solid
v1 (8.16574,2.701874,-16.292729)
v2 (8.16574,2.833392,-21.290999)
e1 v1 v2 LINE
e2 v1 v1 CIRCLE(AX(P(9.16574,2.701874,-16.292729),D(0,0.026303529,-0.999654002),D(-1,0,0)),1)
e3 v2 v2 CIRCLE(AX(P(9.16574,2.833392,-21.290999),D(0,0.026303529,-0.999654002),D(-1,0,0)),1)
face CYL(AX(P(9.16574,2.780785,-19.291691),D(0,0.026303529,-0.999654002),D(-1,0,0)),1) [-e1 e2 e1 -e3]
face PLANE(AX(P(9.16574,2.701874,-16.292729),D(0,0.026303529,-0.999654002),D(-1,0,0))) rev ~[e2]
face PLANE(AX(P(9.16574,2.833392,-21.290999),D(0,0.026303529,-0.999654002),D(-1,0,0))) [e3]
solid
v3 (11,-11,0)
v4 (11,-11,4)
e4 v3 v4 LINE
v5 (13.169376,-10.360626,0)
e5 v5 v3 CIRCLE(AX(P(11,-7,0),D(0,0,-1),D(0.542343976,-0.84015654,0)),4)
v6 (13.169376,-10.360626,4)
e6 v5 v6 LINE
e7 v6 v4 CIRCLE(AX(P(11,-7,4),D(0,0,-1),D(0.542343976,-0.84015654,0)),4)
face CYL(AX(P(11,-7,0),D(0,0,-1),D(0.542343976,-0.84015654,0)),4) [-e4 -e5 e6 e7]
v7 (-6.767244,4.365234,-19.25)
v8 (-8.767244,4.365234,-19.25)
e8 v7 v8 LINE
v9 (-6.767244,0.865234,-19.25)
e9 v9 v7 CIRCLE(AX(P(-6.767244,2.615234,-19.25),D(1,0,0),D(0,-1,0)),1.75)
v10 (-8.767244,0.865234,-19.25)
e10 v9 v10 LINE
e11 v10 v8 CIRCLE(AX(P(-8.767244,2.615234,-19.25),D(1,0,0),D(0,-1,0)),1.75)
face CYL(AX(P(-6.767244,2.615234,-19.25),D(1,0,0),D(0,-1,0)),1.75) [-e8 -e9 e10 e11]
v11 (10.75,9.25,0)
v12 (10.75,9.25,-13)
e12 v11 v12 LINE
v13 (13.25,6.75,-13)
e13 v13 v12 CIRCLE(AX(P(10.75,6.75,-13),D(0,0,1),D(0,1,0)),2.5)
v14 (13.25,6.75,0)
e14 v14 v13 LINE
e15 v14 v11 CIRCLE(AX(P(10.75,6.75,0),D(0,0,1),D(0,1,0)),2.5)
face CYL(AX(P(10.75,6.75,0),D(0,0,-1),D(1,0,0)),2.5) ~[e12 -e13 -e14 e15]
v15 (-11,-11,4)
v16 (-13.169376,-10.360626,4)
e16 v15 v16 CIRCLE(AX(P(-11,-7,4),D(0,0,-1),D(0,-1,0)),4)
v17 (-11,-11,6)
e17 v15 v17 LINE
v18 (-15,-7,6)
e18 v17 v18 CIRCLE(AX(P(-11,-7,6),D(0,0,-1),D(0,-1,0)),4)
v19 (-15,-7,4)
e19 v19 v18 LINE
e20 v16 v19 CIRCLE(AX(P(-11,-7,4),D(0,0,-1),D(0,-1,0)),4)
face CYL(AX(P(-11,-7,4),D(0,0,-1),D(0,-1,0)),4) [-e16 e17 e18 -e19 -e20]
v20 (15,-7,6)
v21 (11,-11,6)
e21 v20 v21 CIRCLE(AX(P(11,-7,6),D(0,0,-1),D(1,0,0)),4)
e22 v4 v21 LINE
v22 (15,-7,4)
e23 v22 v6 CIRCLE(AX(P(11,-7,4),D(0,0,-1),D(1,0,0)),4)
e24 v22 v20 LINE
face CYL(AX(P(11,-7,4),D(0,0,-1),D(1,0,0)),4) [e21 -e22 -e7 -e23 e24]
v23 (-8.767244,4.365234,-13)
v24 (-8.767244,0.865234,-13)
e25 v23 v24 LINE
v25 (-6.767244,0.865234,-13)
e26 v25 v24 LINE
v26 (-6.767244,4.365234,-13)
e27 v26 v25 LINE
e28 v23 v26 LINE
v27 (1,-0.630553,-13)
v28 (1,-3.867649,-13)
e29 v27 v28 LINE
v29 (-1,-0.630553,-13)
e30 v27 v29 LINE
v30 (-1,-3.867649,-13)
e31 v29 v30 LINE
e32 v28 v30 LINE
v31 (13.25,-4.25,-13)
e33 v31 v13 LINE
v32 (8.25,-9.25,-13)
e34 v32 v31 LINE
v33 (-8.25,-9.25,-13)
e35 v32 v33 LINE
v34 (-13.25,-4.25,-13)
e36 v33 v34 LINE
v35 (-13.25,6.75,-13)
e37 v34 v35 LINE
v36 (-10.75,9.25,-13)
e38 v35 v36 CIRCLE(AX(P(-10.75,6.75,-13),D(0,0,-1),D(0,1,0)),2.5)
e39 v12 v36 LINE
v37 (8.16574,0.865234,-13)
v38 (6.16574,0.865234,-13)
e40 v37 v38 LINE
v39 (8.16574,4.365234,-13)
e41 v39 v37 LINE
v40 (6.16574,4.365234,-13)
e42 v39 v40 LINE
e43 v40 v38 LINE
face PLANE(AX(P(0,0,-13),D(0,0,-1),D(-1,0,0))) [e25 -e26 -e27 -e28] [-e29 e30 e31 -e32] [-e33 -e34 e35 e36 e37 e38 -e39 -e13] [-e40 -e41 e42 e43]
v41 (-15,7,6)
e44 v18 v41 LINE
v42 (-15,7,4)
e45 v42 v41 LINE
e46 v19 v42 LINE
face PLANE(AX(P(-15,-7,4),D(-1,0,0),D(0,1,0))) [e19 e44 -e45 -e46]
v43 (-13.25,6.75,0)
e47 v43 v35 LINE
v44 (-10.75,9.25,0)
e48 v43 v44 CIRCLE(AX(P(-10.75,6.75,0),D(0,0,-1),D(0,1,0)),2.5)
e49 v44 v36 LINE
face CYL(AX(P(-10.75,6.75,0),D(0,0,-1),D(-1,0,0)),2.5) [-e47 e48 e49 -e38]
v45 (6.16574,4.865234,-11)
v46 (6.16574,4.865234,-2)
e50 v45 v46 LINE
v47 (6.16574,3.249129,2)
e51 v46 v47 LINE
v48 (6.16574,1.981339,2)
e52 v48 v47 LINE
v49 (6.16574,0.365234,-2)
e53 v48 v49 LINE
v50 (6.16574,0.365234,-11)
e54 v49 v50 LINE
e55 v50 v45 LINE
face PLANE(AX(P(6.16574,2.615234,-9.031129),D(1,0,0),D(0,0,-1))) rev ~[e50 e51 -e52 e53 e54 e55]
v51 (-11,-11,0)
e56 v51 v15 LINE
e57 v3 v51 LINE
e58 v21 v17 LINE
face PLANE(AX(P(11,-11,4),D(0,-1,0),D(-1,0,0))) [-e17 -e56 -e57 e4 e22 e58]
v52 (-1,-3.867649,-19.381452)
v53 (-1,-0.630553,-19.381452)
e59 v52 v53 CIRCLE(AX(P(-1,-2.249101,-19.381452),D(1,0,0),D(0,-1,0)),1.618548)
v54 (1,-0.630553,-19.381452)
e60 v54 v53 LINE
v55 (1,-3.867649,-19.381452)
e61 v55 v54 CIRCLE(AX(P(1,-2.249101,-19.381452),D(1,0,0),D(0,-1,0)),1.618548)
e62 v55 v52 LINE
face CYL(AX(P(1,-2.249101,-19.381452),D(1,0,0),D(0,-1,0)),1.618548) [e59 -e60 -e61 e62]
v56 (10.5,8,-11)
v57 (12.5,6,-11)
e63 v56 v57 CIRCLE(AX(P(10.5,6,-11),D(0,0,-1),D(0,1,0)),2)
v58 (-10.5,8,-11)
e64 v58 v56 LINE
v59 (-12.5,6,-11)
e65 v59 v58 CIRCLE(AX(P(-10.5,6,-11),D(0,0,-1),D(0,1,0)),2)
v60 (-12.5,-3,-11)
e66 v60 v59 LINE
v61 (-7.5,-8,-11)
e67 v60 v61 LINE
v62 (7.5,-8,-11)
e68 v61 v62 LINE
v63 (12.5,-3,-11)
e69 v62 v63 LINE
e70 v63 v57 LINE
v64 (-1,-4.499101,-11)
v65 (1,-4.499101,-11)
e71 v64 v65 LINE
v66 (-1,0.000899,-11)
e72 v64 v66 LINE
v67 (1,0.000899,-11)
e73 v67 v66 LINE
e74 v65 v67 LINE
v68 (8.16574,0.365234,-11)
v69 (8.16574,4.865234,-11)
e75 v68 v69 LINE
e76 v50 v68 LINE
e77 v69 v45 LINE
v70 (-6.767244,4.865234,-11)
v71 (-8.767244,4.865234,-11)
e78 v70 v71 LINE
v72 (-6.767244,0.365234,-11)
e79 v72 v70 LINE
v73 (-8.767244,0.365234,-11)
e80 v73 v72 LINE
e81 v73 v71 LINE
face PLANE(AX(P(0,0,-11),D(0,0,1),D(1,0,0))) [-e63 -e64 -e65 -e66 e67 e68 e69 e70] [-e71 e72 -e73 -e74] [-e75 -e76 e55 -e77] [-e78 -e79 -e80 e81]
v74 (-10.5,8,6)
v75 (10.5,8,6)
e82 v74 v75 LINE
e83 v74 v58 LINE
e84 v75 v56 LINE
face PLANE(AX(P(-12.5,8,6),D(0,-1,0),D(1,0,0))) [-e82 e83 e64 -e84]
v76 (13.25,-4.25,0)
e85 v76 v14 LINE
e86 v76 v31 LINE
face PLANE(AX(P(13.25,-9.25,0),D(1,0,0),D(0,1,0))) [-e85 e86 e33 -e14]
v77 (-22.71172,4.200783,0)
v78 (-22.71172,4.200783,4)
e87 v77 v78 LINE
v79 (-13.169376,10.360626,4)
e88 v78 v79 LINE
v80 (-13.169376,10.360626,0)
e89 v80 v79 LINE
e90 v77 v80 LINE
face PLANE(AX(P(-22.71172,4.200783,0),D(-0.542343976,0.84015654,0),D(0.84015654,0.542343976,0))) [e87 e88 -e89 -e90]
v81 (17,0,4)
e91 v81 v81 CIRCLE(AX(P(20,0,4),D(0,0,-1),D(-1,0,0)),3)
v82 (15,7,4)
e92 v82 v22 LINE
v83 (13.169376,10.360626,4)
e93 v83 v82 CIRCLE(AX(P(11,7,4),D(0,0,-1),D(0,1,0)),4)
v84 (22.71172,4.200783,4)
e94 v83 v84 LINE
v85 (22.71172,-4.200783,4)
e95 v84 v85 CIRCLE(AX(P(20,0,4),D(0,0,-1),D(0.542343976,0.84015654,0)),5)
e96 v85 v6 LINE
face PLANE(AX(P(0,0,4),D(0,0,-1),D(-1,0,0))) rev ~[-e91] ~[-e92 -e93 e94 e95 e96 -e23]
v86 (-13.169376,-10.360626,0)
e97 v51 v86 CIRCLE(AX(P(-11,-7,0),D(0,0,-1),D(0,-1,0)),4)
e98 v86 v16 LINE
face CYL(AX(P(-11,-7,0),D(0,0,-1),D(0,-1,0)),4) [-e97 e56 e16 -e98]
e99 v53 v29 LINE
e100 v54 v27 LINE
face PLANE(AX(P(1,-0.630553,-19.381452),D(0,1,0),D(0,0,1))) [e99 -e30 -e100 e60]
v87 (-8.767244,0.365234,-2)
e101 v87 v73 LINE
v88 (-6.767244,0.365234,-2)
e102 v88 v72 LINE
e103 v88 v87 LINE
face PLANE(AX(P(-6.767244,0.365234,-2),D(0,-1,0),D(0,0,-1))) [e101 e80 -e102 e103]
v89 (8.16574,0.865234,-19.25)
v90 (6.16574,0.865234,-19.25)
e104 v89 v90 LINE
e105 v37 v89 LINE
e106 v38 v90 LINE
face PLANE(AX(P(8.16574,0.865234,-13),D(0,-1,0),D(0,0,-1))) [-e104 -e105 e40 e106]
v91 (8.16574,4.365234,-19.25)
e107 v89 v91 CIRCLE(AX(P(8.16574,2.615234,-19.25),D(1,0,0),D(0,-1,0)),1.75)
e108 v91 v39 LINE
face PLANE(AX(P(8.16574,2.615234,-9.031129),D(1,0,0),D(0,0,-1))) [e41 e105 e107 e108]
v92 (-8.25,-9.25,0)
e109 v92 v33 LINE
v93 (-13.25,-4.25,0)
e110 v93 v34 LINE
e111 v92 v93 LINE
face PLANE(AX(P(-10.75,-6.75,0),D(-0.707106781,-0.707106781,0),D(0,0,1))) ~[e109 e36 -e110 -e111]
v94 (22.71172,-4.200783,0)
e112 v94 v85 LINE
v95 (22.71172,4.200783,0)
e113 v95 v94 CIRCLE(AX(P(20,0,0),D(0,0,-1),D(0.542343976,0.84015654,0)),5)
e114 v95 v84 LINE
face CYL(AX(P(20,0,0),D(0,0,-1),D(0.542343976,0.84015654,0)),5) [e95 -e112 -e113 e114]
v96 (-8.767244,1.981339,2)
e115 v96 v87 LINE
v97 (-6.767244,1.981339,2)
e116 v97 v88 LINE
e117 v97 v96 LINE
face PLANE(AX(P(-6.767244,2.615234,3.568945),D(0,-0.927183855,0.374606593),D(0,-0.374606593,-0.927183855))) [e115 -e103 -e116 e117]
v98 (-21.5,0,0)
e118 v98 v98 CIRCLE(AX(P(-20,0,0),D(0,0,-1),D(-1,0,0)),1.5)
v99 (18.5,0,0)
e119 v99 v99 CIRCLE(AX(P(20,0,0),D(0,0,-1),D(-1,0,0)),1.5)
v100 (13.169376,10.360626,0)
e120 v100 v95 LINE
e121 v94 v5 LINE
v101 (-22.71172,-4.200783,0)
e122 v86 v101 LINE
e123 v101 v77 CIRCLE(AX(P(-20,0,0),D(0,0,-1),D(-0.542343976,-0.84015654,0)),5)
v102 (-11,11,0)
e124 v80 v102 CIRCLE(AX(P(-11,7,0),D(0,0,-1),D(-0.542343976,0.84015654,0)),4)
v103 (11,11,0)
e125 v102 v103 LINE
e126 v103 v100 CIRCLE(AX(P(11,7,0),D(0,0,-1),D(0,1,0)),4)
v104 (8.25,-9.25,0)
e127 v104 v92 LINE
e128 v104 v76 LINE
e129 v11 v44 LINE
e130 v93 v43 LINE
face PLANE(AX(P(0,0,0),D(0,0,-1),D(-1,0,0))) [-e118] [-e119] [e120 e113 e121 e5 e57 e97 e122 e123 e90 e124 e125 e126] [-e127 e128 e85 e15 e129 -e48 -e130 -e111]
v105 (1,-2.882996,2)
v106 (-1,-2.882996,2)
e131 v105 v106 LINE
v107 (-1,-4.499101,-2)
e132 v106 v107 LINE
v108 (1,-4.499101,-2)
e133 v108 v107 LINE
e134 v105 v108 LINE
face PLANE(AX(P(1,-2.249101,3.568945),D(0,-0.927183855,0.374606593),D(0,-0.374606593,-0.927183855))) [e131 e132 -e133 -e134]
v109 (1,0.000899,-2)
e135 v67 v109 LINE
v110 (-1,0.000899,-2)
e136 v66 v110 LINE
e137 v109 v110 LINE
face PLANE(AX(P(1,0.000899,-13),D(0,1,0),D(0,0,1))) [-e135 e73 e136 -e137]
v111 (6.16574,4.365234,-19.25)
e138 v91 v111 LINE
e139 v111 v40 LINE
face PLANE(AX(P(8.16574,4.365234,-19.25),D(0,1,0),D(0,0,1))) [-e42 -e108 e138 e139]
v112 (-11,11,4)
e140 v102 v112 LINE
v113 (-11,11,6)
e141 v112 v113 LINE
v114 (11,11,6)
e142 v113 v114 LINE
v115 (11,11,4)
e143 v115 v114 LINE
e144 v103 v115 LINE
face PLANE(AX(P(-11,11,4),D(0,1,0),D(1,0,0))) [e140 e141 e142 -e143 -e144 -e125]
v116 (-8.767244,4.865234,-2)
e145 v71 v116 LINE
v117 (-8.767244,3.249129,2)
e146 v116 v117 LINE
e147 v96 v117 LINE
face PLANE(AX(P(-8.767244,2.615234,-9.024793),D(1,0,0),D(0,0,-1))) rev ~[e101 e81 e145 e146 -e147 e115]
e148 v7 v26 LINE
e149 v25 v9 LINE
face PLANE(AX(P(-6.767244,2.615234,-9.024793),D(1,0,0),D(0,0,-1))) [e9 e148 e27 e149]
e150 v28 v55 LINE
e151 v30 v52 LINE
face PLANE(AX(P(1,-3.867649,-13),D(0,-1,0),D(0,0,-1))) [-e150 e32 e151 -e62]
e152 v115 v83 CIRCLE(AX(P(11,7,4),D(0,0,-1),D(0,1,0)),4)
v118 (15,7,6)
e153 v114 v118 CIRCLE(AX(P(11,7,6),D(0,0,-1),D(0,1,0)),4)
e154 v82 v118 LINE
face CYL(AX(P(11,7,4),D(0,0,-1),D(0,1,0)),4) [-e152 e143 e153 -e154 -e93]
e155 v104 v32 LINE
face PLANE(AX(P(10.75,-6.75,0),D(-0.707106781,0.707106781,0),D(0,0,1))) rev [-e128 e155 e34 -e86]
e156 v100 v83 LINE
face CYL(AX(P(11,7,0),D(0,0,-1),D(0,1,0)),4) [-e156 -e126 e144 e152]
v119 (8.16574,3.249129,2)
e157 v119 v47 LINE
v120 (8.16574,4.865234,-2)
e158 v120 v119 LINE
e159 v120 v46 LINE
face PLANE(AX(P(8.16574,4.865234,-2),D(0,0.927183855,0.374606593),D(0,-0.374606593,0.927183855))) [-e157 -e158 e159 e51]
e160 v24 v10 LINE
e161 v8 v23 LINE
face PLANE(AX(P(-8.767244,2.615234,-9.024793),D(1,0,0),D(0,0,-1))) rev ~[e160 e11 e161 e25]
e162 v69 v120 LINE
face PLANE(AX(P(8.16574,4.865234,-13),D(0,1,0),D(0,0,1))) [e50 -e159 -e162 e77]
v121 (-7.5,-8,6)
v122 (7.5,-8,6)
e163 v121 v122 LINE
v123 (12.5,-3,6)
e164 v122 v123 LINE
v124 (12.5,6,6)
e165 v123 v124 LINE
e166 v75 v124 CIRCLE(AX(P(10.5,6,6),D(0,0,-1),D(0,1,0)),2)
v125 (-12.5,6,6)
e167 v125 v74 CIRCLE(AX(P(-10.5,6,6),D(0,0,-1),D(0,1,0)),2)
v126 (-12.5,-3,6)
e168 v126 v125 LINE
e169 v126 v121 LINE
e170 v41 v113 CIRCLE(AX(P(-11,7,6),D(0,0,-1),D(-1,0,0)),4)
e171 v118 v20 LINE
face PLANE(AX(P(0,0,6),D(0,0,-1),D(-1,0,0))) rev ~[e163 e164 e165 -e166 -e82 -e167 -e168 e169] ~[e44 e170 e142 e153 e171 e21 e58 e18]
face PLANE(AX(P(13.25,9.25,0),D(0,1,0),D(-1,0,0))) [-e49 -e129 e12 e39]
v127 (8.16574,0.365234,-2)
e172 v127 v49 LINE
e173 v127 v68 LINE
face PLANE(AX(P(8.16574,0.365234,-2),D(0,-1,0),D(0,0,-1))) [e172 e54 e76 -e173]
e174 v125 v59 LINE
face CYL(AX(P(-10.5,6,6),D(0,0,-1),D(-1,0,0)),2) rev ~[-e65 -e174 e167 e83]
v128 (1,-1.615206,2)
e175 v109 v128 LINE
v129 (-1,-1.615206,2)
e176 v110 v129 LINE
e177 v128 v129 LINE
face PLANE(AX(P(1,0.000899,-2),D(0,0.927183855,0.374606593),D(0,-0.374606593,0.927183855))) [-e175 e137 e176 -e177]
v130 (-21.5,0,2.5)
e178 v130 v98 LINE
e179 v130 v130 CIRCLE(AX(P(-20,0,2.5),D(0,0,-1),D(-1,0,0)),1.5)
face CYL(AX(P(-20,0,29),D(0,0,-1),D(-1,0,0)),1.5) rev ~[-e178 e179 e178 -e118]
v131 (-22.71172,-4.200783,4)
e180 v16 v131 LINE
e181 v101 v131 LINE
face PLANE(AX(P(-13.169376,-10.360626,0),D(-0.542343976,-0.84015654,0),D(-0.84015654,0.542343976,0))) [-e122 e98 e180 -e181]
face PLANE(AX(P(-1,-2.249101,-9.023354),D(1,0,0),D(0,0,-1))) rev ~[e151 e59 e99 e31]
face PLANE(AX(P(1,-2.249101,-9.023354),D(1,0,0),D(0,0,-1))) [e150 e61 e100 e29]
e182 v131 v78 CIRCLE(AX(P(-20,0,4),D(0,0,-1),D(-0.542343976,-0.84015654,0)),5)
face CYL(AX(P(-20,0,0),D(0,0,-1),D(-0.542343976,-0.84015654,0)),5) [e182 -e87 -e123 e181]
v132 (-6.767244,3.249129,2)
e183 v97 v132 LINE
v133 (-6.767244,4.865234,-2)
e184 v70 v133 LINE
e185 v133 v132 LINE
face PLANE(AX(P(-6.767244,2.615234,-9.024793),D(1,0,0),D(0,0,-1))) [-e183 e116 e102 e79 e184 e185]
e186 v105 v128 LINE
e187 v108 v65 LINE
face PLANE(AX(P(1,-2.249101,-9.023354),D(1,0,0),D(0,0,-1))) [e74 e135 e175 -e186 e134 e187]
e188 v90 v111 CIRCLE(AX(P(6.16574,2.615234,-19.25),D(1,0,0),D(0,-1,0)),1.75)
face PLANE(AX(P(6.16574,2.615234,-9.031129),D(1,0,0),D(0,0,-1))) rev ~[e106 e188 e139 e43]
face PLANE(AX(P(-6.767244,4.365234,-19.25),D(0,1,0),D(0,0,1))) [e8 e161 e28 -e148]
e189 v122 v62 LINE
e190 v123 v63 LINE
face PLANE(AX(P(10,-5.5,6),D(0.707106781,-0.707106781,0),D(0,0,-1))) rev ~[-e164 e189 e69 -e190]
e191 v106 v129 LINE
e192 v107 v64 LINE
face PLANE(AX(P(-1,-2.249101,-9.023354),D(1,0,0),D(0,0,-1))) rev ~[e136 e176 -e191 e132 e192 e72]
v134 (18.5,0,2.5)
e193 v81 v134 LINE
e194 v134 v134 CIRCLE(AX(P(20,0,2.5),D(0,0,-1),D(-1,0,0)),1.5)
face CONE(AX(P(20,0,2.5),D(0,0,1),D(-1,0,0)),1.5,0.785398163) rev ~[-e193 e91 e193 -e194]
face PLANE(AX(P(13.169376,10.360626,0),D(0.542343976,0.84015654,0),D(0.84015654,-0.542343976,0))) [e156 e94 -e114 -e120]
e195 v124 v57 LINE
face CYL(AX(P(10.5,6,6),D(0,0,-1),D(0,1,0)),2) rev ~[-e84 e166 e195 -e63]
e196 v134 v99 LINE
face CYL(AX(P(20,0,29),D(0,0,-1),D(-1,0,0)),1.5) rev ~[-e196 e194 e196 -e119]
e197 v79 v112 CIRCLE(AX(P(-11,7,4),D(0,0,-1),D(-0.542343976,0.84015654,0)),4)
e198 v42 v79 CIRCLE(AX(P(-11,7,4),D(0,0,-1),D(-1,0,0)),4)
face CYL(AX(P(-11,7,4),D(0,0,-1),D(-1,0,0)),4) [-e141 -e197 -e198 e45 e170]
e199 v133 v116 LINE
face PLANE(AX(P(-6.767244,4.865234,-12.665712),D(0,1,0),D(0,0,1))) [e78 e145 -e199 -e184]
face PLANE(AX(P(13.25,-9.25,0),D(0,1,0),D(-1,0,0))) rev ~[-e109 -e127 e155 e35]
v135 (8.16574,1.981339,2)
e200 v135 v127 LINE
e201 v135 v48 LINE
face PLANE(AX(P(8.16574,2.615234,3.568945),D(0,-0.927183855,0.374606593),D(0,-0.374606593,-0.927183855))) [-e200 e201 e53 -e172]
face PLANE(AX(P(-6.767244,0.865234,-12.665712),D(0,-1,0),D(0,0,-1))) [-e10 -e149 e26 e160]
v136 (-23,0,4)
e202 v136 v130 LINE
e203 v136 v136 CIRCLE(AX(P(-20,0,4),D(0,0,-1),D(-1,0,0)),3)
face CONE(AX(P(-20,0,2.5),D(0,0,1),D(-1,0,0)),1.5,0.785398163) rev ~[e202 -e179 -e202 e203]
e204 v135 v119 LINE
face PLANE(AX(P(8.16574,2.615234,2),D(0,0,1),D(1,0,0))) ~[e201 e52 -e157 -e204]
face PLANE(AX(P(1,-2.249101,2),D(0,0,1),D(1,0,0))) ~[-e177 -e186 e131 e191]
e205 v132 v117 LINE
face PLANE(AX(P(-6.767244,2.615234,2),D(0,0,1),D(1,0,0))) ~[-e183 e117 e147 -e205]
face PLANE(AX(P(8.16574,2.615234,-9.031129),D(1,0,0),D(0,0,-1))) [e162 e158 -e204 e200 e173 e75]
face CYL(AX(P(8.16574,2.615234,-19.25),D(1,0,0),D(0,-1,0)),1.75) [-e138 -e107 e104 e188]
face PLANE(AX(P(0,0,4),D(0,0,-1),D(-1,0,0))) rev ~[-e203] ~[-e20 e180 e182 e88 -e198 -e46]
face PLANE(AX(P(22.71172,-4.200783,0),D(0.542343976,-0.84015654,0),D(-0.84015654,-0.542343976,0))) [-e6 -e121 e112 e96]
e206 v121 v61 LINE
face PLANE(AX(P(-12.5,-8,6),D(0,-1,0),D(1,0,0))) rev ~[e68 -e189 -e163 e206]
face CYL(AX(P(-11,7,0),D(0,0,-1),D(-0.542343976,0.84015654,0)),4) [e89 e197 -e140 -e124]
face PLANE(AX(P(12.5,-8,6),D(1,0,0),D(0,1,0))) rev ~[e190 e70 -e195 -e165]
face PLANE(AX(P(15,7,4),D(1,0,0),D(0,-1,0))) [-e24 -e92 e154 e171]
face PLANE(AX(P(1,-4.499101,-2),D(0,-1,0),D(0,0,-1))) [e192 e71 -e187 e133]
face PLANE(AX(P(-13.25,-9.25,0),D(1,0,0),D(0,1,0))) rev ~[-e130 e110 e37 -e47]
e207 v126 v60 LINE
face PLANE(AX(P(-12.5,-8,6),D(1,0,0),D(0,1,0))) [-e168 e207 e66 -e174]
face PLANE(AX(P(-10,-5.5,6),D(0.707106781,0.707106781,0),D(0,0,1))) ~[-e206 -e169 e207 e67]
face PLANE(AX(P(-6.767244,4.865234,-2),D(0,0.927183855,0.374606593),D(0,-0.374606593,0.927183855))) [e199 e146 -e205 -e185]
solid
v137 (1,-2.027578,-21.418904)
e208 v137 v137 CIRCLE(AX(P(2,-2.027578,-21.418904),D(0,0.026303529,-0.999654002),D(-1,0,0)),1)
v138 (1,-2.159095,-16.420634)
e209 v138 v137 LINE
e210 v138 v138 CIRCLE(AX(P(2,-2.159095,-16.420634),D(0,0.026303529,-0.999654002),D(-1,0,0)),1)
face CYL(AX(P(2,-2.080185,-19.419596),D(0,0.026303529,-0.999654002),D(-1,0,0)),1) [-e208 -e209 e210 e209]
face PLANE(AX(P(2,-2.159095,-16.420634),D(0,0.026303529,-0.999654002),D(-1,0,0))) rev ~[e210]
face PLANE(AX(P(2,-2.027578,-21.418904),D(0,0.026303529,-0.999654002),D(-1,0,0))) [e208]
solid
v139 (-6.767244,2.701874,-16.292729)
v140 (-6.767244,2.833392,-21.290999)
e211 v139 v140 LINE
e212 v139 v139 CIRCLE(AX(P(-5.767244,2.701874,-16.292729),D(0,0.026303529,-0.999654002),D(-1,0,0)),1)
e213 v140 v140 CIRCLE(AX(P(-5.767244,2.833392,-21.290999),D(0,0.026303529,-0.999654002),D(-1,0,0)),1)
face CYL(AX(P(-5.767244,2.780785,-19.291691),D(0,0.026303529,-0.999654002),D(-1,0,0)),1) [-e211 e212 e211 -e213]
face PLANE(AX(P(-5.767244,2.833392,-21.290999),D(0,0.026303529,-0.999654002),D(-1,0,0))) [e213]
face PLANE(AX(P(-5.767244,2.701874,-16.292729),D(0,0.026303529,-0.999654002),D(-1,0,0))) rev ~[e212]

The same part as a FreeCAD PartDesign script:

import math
import FreeCAD as App
import Part
import Sketcher
from FreeCAD import Vector
Q = App.Units.Quantity


def edges_at(feature, points):
    """Names of the edges that pass closest to the given points."""
    edges = feature.Shape.Edges
    near = lambda p: min(range(len(edges)), key=lambda i: edges[i].distToShape(Part.Vertex(*p))[0])
    return sorted({f"Edge{near(p) + 1}" for p in points})


def add_polygon(sketch, points):
    """Adds a closed chain of lines whose ends are joined by coincident constraints."""
    first, n = sketch.GeometryCount, len(points)
    for a, b in zip(points, points[1:] + points[:1]):
        sketch.addGeometry(Part.LineSegment(App.Vector(*a, 0), App.Vector(*b, 0)), False)
    for i in range(n):
        sketch.addConstraint(Sketcher.Constraint("Coincident", first + i, 2, first + (i + 1) % n, 1))

doc = App.newDocument("Part")
body = doc.addObject("PartDesign::Body", "Body")

# Sketch on XY plane
sketch1 = body.newObject("Sketcher::SketchObject", "Sketch")
sketch1.AttachmentSupport = (doc.getObject("XY_Plane"), [""])
sketch1.MapMode = "FlatFace"
sketch1.addGeometry(Part.LineSegment(Vector(13.169376, 10.360626, 0), Vector(22.71172, 4.200783, 0)), False)
sketch1.addGeometry(Part.ArcOfCircle(Part.Circle(Vector(20, 0, 0), Vector(0, 0, 1), 5), math.radians(-57.156654), math.radians(57.156654)), False)
sketch1.addGeometry(Part.LineSegment(Vector(22.71172, -4.200783, 0), Vector(13.169376, -10.360626, 0)), False)
sketch1.addGeometry(Part.ArcOfCircle(Part.Circle(Vector(11, -7, 0), Vector(0, 0, 1), 4), math.radians(-90), math.radians(-57.156654)), False)
sketch1.addGeometry(Part.LineSegment(Vector(11, -11, 0), Vector(-11, -11, 0)), False)
sketch1.addGeometry(Part.ArcOfCircle(Part.Circle(Vector(-11, -7, 0), Vector(0, 0, 1), 4), math.radians(-122.843346), math.radians(-90)), False)
sketch1.addGeometry(Part.LineSegment(Vector(-13.169376, -10.360626, 0), Vector(-22.71172, -4.200783, 0)), False)
sketch1.addGeometry(Part.ArcOfCircle(Part.Circle(Vector(-20, 0, 0), Vector(0, 0, 1), 5), math.radians(122.843346), math.radians(237.156654)), False)
sketch1.addGeometry(Part.LineSegment(Vector(-22.71172, 4.200783, 0), Vector(-13.169376, 10.360626, 0)), False)
sketch1.addGeometry(Part.ArcOfCircle(Part.Circle(Vector(-11, 7, 0), Vector(0, 0, 1), 4), math.radians(90), math.radians(122.843346)), False)
sketch1.addGeometry(Part.LineSegment(Vector(-11, 11, 0), Vector(11, 11, 0)), False)
sketch1.addGeometry(Part.ArcOfCircle(Part.Circle(Vector(11, 7, 0), Vector(0, 0, 1), 4), math.radians(57.156654), math.radians(90)), False)
sketch1.addConstraint(Sketcher.Constraint("Tangent", 0, 2, 1, 2))
sketch1.addConstraint(Sketcher.Constraint("Tangent", 1, 1, 2, 1))
sketch1.addConstraint(Sketcher.Constraint("Tangent", 2, 2, 3, 2))
sketch1.addConstraint(Sketcher.Constraint("Tangent", 3, 1, 4, 1))
sketch1.addConstraint(Sketcher.Constraint("Tangent", 4, 2, 5, 2))
sketch1.addConstraint(Sketcher.Constraint("Tangent", 5, 1, 6, 1))
sketch1.addConstraint(Sketcher.Constraint("Tangent", 6, 2, 7, 2))
sketch1.addConstraint(Sketcher.Constraint("Tangent", 7, 1, 8, 1))
sketch1.addConstraint(Sketcher.Constraint("Tangent", 8, 2, 9, 2))
sketch1.addConstraint(Sketcher.Constraint("Tangent", 9, 1, 10, 1))
sketch1.addConstraint(Sketcher.Constraint("Tangent", 10, 2, 11, 2))
sketch1.addConstraint(Sketcher.Constraint("Tangent", 11, 1, 0, 1))
sketch1.addConstraint(Sketcher.Constraint("Horizontal", 4))
sketch1.addConstraint(Sketcher.Constraint("Horizontal", 10))
sketch1.addConstraint(Sketcher.Constraint("Equal", 3, 5))
sketch1.addConstraint(Sketcher.Constraint("Equal", 1, 7))
sketch1.addConstraint(Sketcher.Constraint("Equal", 5, 9))
sketch1.addConstraint(Sketcher.Constraint("Equal", 9, 11))
sketch1.addConstraint(Sketcher.Constraint("Symmetric", 1, 3, 7, 3, -1, 1))
sketch1.addConstraint(Sketcher.Constraint("Symmetric", 3, 3, 9, 3, -1, 1))
sketch1.addConstraint(Sketcher.Constraint("Symmetric", 2, 2, 5, 1, -2))
sketch1.addConstraint(Sketcher.Constraint("Parallel", 0, 6))
sketch1.addConstraint(Sketcher.Constraint("Radius", 1, 5.0))
sketch1.addConstraint(Sketcher.Constraint("Radius", 3, 4.0))
sketch1.addConstraint(Sketcher.Constraint("DistanceX", 4, 2, 4, 1, 22.0))
sketch1.addConstraint(Sketcher.Constraint("DistanceX", -1, 1, 1, 3, 20.0))
sketch1.addConstraint(Sketcher.Constraint("DistanceY", 3, 3, -1, 1, 7.0))
pad1 = body.newObject("PartDesign::Pad", "Pad")
pad1.Profile = sketch1
pad1.Length = 4

# Sketch on XY plane
sketch2 = body.newObject("Sketcher::SketchObject", "Sketch001")
sketch2.AttachmentSupport = (doc.getObject("XY_Plane"), [""])
sketch2.MapMode = "FlatFace"
sketch2.AttachmentOffset = App.Placement(Vector(0, 0, 4), App.Rotation())
sketch2.addGeometry(Part.LineSegment(Vector(-11, -11, 0), Vector(11, -11, 0)), False)
sketch2.addGeometry(Part.ArcOfCircle(Part.Circle(Vector(11, -7, 0), Vector(0, 0, 1), 4), math.radians(-90), math.radians(0)), False)
sketch2.addGeometry(Part.LineSegment(Vector(15, -7, 0), Vector(15, 7, 0)), False)
sketch2.addGeometry(Part.ArcOfCircle(Part.Circle(Vector(11, 7, 0), Vector(0, 0, 1), 4), math.radians(0), math.radians(90)), False)
sketch2.addGeometry(Part.LineSegment(Vector(11, 11, 0), Vector(-11, 11, 0)), False)
sketch2.addGeometry(Part.ArcOfCircle(Part.Circle(Vector(-11, 7, 0), Vector(0, 0, 1), 4), math.radians(90), math.radians(180)), False)
sketch2.addGeometry(Part.LineSegment(Vector(-15, 7, 0), Vector(-15, -7, 0)), False)
sketch2.addGeometry(Part.ArcOfCircle(Part.Circle(Vector(-11, -7, 0), Vector(0, 0, 1), 4), math.radians(180), math.radians(270)), False)
sketch2.addConstraint(Sketcher.Constraint("Tangent", 0, 2, 1, 1))
sketch2.addConstraint(Sketcher.Constraint("Tangent", 1, 2, 2, 1))
sketch2.addConstraint(Sketcher.Constraint("Tangent", 2, 2, 3, 1))
sketch2.addConstraint(Sketcher.Constraint("Tangent", 3, 2, 4, 1))
sketch2.addConstraint(Sketcher.Constraint("Tangent", 4, 2, 5, 1))
sketch2.addConstraint(Sketcher.Constraint("Tangent", 5, 2, 6, 1))
sketch2.addConstraint(Sketcher.Constraint("Tangent", 6, 2, 7, 1))
sketch2.addConstraint(Sketcher.Constraint("Tangent", 7, 2, 0, 1))
sketch2.addConstraint(Sketcher.Constraint("Horizontal", 0))
sketch2.addConstraint(Sketcher.Constraint("Vertical", 2))
sketch2.addConstraint(Sketcher.Constraint("Horizontal", 4))
sketch2.addConstraint(Sketcher.Constraint("Vertical", 6))
sketch2.addConstraint(Sketcher.Constraint("Equal", 1, 3))
sketch2.addConstraint(Sketcher.Constraint("Equal", 3, 5))
sketch2.addConstraint(Sketcher.Constraint("Equal", 5, 7))
sketch2.addConstraint(Sketcher.Constraint("Symmetric", 1, 3, 5, 3, -1, 1))
sketch2.addConstraint(Sketcher.Constraint("Radius", 1, 4.0))
sketch2.addConstraint(Sketcher.Constraint("DistanceX", 0, 1, 0, 2, 22.0))
sketch2.addConstraint(Sketcher.Constraint("DistanceY", 2, 1, 2, 2, 14.0))
pad2 = body.newObject("PartDesign::Pad", "Pad001")
pad2.Profile = sketch2
pad2.Length = 2

# Sketch on XY plane
sketch3 = body.newObject("Sketcher::SketchObject", "Sketch002")
sketch3.AttachmentSupport = (doc.getObject("XY_Plane"), [""])
sketch3.MapMode = "FlatFace"
add_polygon(sketch3, [(13.25, 9.25), (13.25, -9.25), (-13.25, -9.25), (-13.25, 9.25)])  # lines 0-3
sketch3.addConstraint(Sketcher.Constraint("Vertical", 0))
sketch3.addConstraint(Sketcher.Constraint("Horizontal", 1))
sketch3.addConstraint(Sketcher.Constraint("Vertical", 2))
sketch3.addConstraint(Sketcher.Constraint("Horizontal", 3))
sketch3.addConstraint(Sketcher.Constraint("Symmetric", 0, 2, 2, 2, -1, 1))
sketch3.addConstraint(Sketcher.Constraint("DistanceX", 1, 2, 1, 1, 26.5))
sketch3.addConstraint(Sketcher.Constraint("DistanceY", 0, 2, 0, 1, 18.5))
pad3 = body.newObject("PartDesign::Pad", "Pad002")
pad3.Profile = sketch3
pad3.Length = 13
pad3.Reversed = True

# Sketch on XY plane
sketch4 = body.newObject("Sketcher::SketchObject", "Sketch003")
sketch4.AttachmentSupport = (doc.getObject("XY_Plane"), [""])
sketch4.MapMode = "FlatFace"
sketch4.AttachmentOffset = App.Placement(Vector(0, 0, 6), App.Rotation())
add_polygon(sketch4, [(-12.5, 8), (-12.5, -8), (12.5, -8), (12.5, 8)])  # lines 0-3
sketch4.addConstraint(Sketcher.Constraint("Vertical", 0))
sketch4.addConstraint(Sketcher.Constraint("Horizontal", 1))
sketch4.addConstraint(Sketcher.Constraint("Vertical", 2))
sketch4.addConstraint(Sketcher.Constraint("Horizontal", 3))
sketch4.addConstraint(Sketcher.Constraint("Symmetric", 0, 2, 2, 2, -1, 1))
sketch4.addConstraint(Sketcher.Constraint("DistanceX", 1, 1, 1, 2, 25.0))
sketch4.addConstraint(Sketcher.Constraint("DistanceY", 0, 2, 0, 1, 16.0))
pocket1 = body.newObject("PartDesign::Pocket", "Pocket")
pocket1.Profile = sketch4
pocket1.Length = 17

# Sketch on YZ plane
sketch5 = body.newObject("Sketcher::SketchObject", "Sketch004")
sketch5.AttachmentSupport = (doc.getObject("YZ_Plane"), [""])
sketch5.MapMode = "FlatFace"
sketch5.AttachmentOffset = App.Placement(Vector(0, 0, 1), App.Rotation())
sketch5.addGeometry(Part.LineSegment(Vector(0.000899, -2, 0), Vector(-2.249101, 3.568945, 0)), False)
sketch5.addGeometry(Part.LineSegment(Vector(-2.249101, 3.568945, 0), Vector(-4.499101, -2, 0)), False)
sketch5.addGeometry(Part.LineSegment(Vector(-4.499101, -2, 0), Vector(-4.499101, -13, 0)), False)
sketch5.addGeometry(Part.LineSegment(Vector(-4.499101, -13, 0), Vector(-3.867649, -13, 0)), False)
sketch5.addGeometry(Part.LineSegment(Vector(-3.867649, -13, 0), Vector(-3.867649, -19.381452, 0)), False)
sketch5.addGeometry(Part.ArcOfCircle(Part.Circle(Vector(-2.249101, -19.381452, 0), Vector(0, 0, 1), 1.618548), math.radians(180), math.radians(360)), False)
sketch5.addGeometry(Part.LineSegment(Vector(-0.630553, -19.381452, 0), Vector(-0.630553, -13, 0)), False)
sketch5.addGeometry(Part.LineSegment(Vector(-0.630553, -13, 0), Vector(0.000899, -13, 0)), False)
sketch5.addGeometry(Part.LineSegment(Vector(0.000899, -13, 0), Vector(0.000899, -2, 0)), False)
sketch5.addConstraint(Sketcher.Constraint("Coincident", 0, 2, 1, 1))
sketch5.addConstraint(Sketcher.Constraint("Coincident", 1, 2, 2, 1))
sketch5.addConstraint(Sketcher.Constraint("Coincident", 2, 2, 3, 1))
sketch5.addConstraint(Sketcher.Constraint("Coincident", 3, 2, 4, 1))
sketch5.addConstraint(Sketcher.Constraint("Tangent", 4, 2, 5, 1))
sketch5.addConstraint(Sketcher.Constraint("Tangent", 5, 2, 6, 1))
sketch5.addConstraint(Sketcher.Constraint("Coincident", 6, 2, 7, 1))
sketch5.addConstraint(Sketcher.Constraint("Coincident", 7, 2, 8, 1))
sketch5.addConstraint(Sketcher.Constraint("Coincident", 8, 2, 0, 1))
sketch5.addConstraint(Sketcher.Constraint("Vertical", 2))
sketch5.addConstraint(Sketcher.Constraint("Horizontal", 3))
sketch5.addConstraint(Sketcher.Constraint("Vertical", 4))
sketch5.addConstraint(Sketcher.Constraint("Vertical", 6))
sketch5.addConstraint(Sketcher.Constraint("Horizontal", 7))
sketch5.addConstraint(Sketcher.Constraint("Vertical", 8))
sketch5.addConstraint(Sketcher.Constraint("Horizontal", 3, 2, 6, 2))
sketch5.addConstraint(Sketcher.Constraint("Horizontal", 1, 2, 8, 2))
sketch5.addConstraint(Sketcher.Constraint("Vertical", 5, 3, 0, 2))
sketch5.addConstraint(Sketcher.Constraint("Equal", 3, 7))
sketch5.addConstraint(Sketcher.Constraint("DistanceY", 2, 2, 2, 1, 11.0))
sketch5.addConstraint(Sketcher.Constraint("Angle", 0, Q("112 deg")))
sketch5.addConstraint(Sketcher.Constraint("DistanceY", 1, 2, -1, 1, 2.0))
sketch5.addConstraint(Sketcher.Constraint("DistanceX", 2, 2, 7, 2, 4.5))
sketch5.addConstraint(Sketcher.Constraint("Radius", 5, 1.618548))
sketch5.addConstraint(Sketcher.Constraint("DistanceX", 5, 3, -1, 1, 2.249101))
sketch5.addConstraint(Sketcher.Constraint("DistanceY", 4, 2, 4, 1, 6.381452))
pad4 = body.newObject("PartDesign::Pad", "Pad003")
pad4.Profile = sketch5
pad4.Length = 2
pad4.Reversed = True

# Sketch on YZ plane
sketch6 = body.newObject("Sketcher::SketchObject", "Sketch005")
sketch6.AttachmentSupport = (doc.getObject("YZ_Plane"), [""])
sketch6.MapMode = "FlatFace"
sketch6.AttachmentOffset = App.Placement(Vector(0, 0, -6.767244), App.Rotation())
sketch6.addGeometry(Part.LineSegment(Vector(4.865234, -2, 0), Vector(2.615234, 3.568945, 0)), False)
sketch6.addGeometry(Part.LineSegment(Vector(2.615234, 3.568945, 0), Vector(0.365234, -2, 0)), False)
sketch6.addGeometry(Part.LineSegment(Vector(0.365234, -2, 0), Vector(0.365234, -12.665712, 0)), False)
sketch6.addGeometry(Part.LineSegment(Vector(0.365234, -12.665712, 0), Vector(0.865234, -12.665712, 0)), False)
sketch6.addGeometry(Part.LineSegment(Vector(0.865234, -12.665712, 0), Vector(0.865234, -19.25, 0)), False)
sketch6.addGeometry(Part.ArcOfCircle(Part.Circle(Vector(2.615234, -19.25, 0), Vector(0, 0, 1), 1.75), math.radians(180), math.radians(360)), False)
sketch6.addGeometry(Part.LineSegment(Vector(4.365234, -19.25, 0), Vector(4.365234, -12.665712, 0)), False)
sketch6.addGeometry(Part.LineSegment(Vector(4.365234, -12.665712, 0), Vector(4.865234, -12.665712, 0)), False)
sketch6.addGeometry(Part.LineSegment(Vector(4.865234, -12.665712, 0), Vector(4.865234, -2, 0)), False)
sketch6.addConstraint(Sketcher.Constraint("Coincident", 0, 2, 1, 1))
sketch6.addConstraint(Sketcher.Constraint("Coincident", 1, 2, 2, 1))
sketch6.addConstraint(Sketcher.Constraint("Coincident", 2, 2, 3, 1))
sketch6.addConstraint(Sketcher.Constraint("Coincident", 3, 2, 4, 1))
sketch6.addConstraint(Sketcher.Constraint("Tangent", 4, 2, 5, 1))
sketch6.addConstraint(Sketcher.Constraint("Tangent", 5, 2, 6, 1))
sketch6.addConstraint(Sketcher.Constraint("Coincident", 6, 2, 7, 1))
sketch6.addConstraint(Sketcher.Constraint("Coincident", 7, 2, 8, 1))
sketch6.addConstraint(Sketcher.Constraint("Coincident", 8, 2, 0, 1))
sketch6.addConstraint(Sketcher.Constraint("Vertical", 2))
sketch6.addConstraint(Sketcher.Constraint("Horizontal", 3))
sketch6.addConstraint(Sketcher.Constraint("Vertical", 4))
sketch6.addConstraint(Sketcher.Constraint("Vertical", 6))
sketch6.addConstraint(Sketcher.Constraint("Horizontal", 7))
sketch6.addConstraint(Sketcher.Constraint("Vertical", 8))
sketch6.addConstraint(Sketcher.Constraint("Horizontal", 3, 2, 6, 2))
sketch6.addConstraint(Sketcher.Constraint("Horizontal", 1, 2, 8, 2))
sketch6.addConstraint(Sketcher.Constraint("Vertical", 5, 3, 0, 2))
sketch6.addConstraint(Sketcher.Constraint("Equal", 3, 7))
sketch6.addConstraint(Sketcher.Constraint("Angle", 0, Q("112 deg")))
sketch6.addConstraint(Sketcher.Constraint("Radius", 5, 1.75))
sketch6.addConstraint(Sketcher.Constraint("DistanceX", 3, 1, 3, 2, 0.5))
sketch6.addConstraint(Sketcher.Constraint("DistanceY", 1, 2, -1, 1, 2.0))
sketch6.addConstraint(Sketcher.Constraint("DistanceY", 5, 3, -1, 1, 19.25))
sketch6.addConstraint(Sketcher.Constraint("DistanceY", 2, 2, 2, 1, 10.665712))
sketch6.addConstraint(Sketcher.Constraint("DistanceX", -1, 1, 5, 3, 2.615234))
pad5 = body.newObject("PartDesign::Pad", "Pad004")
pad5.Profile = sketch6
pad5.Length = 2
pad5.Reversed = True

# Sketch on YZ plane
sketch7 = body.newObject("Sketcher::SketchObject", "Sketch006")
sketch7.AttachmentSupport = (doc.getObject("YZ_Plane"), [""])
sketch7.MapMode = "FlatFace"
sketch7.AttachmentOffset = App.Placement(Vector(0, 0, 8.16574), App.Rotation())
sketch7.addGeometry(Part.LineSegment(Vector(4.865234, -2, 0), Vector(2.615234, 3.568945, 0)), False)
sketch7.addGeometry(Part.LineSegment(Vector(2.615234, 3.568945, 0), Vector(0.365234, -2, 0)), False)
sketch7.addGeometry(Part.LineSegment(Vector(0.365234, -2, 0), Vector(0.365234, -13, 0)), False)
sketch7.addGeometry(Part.LineSegment(Vector(0.365234, -13, 0), Vector(0.865234, -13, 0)), False)
sketch7.addGeometry(Part.LineSegment(Vector(0.865234, -13, 0), Vector(0.865234, -19.25, 0)), False)
sketch7.addGeometry(Part.ArcOfCircle(Part.Circle(Vector(2.615234, -19.25, 0), Vector(0, 0, 1), 1.75), math.radians(180), math.radians(360)), False)
sketch7.addGeometry(Part.LineSegment(Vector(4.365234, -19.25, 0), Vector(4.365234, -13, 0)), False)
sketch7.addGeometry(Part.LineSegment(Vector(4.365234, -13, 0), Vector(4.865234, -13, 0)), False)
sketch7.addGeometry(Part.LineSegment(Vector(4.865234, -13, 0), Vector(4.865234, -2, 0)), False)
sketch7.addConstraint(Sketcher.Constraint("Coincident", 0, 2, 1, 1))
sketch7.addConstraint(Sketcher.Constraint("Coincident", 1, 2, 2, 1))
sketch7.addConstraint(Sketcher.Constraint("Coincident", 2, 2, 3, 1))
sketch7.addConstraint(Sketcher.Constraint("Coincident", 3, 2, 4, 1))
sketch7.addConstraint(Sketcher.Constraint("Tangent", 4, 2, 5, 1))
sketch7.addConstraint(Sketcher.Constraint("Tangent", 5, 2, 6, 1))
sketch7.addConstraint(Sketcher.Constraint("Coincident", 6, 2, 7, 1))
sketch7.addConstraint(Sketcher.Constraint("Coincident", 7, 2, 8, 1))
sketch7.addConstraint(Sketcher.Constraint("Coincident", 8, 2, 0, 1))
sketch7.addConstraint(Sketcher.Constraint("Vertical", 2))
sketch7.addConstraint(Sketcher.Constraint("Horizontal", 3))
sketch7.addConstraint(Sketcher.Constraint("Vertical", 4))
sketch7.addConstraint(Sketcher.Constraint("Vertical", 6))
sketch7.addConstraint(Sketcher.Constraint("Horizontal", 7))
sketch7.addConstraint(Sketcher.Constraint("Vertical", 8))
sketch7.addConstraint(Sketcher.Constraint("Horizontal", 3, 2, 6, 2))
sketch7.addConstraint(Sketcher.Constraint("Horizontal", 1, 2, 8, 2))
sketch7.addConstraint(Sketcher.Constraint("Vertical", 5, 3, 0, 2))
sketch7.addConstraint(Sketcher.Constraint("Equal", 3, 7))
sketch7.addConstraint(Sketcher.Constraint("DistanceY", 2, 2, 2, 1, 11.0))
sketch7.addConstraint(Sketcher.Constraint("Angle", 0, Q("112 deg")))
sketch7.addConstraint(Sketcher.Constraint("Radius", 5, 1.75))
sketch7.addConstraint(Sketcher.Constraint("DistanceX", 3, 1, 3, 2, 0.5))
sketch7.addConstraint(Sketcher.Constraint("DistanceY", 1, 2, -1, 1, 2.0))
sketch7.addConstraint(Sketcher.Constraint("DistanceY", 4, 2, 4, 1, 6.25))
sketch7.addConstraint(Sketcher.Constraint("DistanceX", -1, 1, 5, 3, 2.615234))
pad6 = body.newObject("PartDesign::Pad", "Pad005")
pad6.Profile = sketch7
pad6.Length = 2
pad6.Reversed = True

# Sketch on XY plane
sketch8 = body.newObject("Sketcher::SketchObject", "Sketch007")
sketch8.AttachmentSupport = (doc.getObject("XY_Plane"), [""])
sketch8.MapMode = "FlatFace"
sketch8.AttachmentOffset = App.Placement(Vector(0, 0, 4), App.Rotation())
sketch8.addGeometry(Part.Circle(Vector(-20, 0, 0), Vector(0, 0, 1), 1.5), False)
sketch8.addGeometry(Part.Circle(Vector(20, 0, 0), Vector(0, 0, 1), 1.5), False)
sketch8.addConstraint(Sketcher.Constraint("Equal", 0, 1))
sketch8.addConstraint(Sketcher.Constraint("Symmetric", 0, 3, 1, 3, -1, 1))
sketch8.addConstraint(Sketcher.Constraint("PointOnObject", 0, 3, -1))
sketch8.addConstraint(Sketcher.Constraint("Diameter", 0, 3.0))
sketch8.addConstraint(Sketcher.Constraint("DistanceX", 0, 3, -1, 1, 20.0))
doc.recompute()
hole = body.newObject("PartDesign::Hole", "Hole")
hole.Profile = sketch8
hole.ThreadType = "None"
hole.Diameter = 3
hole.DepthType = "Dimension"
hole.Depth = 25
hole.DrillPoint = "Flat"
doc.recompute()

chamfer = body.newObject("PartDesign::Chamfer", "Chamfer")
chamfer.Base = (hole, edges_at(hole, [
    (-13.25, -9.25, -6.5),
    (13.25, -9.25, -6.5),
    (-12.5, -8, -2.5),
    (12.5, -8, -2.5),
]))
chamfer.Size = 5
doc.recompute()

chamfer2 = body.newObject("PartDesign::Chamfer", "Chamfer001")
chamfer2.Base = (chamfer, edges_at(chamfer, [(0, -2.249, 3.569)]))
chamfer2.Size = 1.692162
doc.recompute()

chamfer3 = body.newObject("PartDesign::Chamfer", "Chamfer002")
chamfer3.Base = (chamfer2, edges_at(chamfer2, [(-7.767, 2.615, 3.569)]))
chamfer3.Size = 1.692162
doc.recompute()

chamfer4 = body.newObject("PartDesign::Chamfer", "Chamfer003")
chamfer4.Base = (chamfer3, edges_at(chamfer3, [(7.166, 2.615, 3.569)]))
chamfer4.Size = 1.692162
doc.recompute()

chamfer5 = body.newObject("PartDesign::Chamfer", "Chamfer004")
chamfer5.Base = (chamfer4, edges_at(chamfer4, [(21.5, 0, 4), (-18.5, 0, 4)]))
chamfer5.Size = 1.5
doc.recompute()

fillet = body.newObject("PartDesign::Fillet", "Fillet")
fillet.Base = (chamfer5, edges_at(chamfer5, [(-12.5, 8, -2.5), (12.5, 8, -2.5)]))
fillet.Radius = 2
doc.recompute()

fillet2 = body.newObject("PartDesign::Fillet", "Fillet001")
fillet2.Base = (fillet, edges_at(fillet, [(-13.25, 9.25, -6.5), (13.25, 9.25, -6.5)]))
fillet2.Radius = 2.5
body2 = doc.addObject("PartDesign::Body", "Body001")
body2.AllowCompound = True

# Sketch on an angled plane
sketch9 = body2.newObject("Sketcher::SketchObject", "Sketch008")
sketch9.Placement = App.Placement(Vector(0, -0.008352, -19.365081), App.Rotation(Vector(-1, 0, 0), Vector(0, 0.999654002, 0.026303529), Vector(0, 0.026303529, -0.999654002), "ZXY"))
sketch9.addGeometry(Part.Circle(Vector(-9.16574, 2.790102, 0), Vector(0, 0, 1), 1), False)
sketch9.addGeometry(Part.Circle(Vector(-2, -2.07255, 0), Vector(0, 0, 1), 1), False)
sketch9.addGeometry(Part.Circle(Vector(5.767244, 2.790102, 0), Vector(0, 0, 1), 1), False)
sketch9.addConstraint(Sketcher.Constraint("Equal", 0, 1))
sketch9.addConstraint(Sketcher.Constraint("Equal", 1, 2))
sketch9.addConstraint(Sketcher.Constraint("Horizontal", 0, 3, 2, 3))
sketch9.addConstraint(Sketcher.Constraint("Diameter", 0, 2.0))
sketch9.addConstraint(Sketcher.Constraint("DistanceX", 1, 3, -1, 1, 2.0))
sketch9.addConstraint(Sketcher.Constraint("DistanceY", -1, 1, 0, 3, 2.790102))
sketch9.addConstraint(Sketcher.Constraint("DistanceX", 0, 3, -1, 1, 9.16574))
sketch9.addConstraint(Sketcher.Constraint("DistanceY", 1, 3, -1, 1, 2.07255))
sketch9.addConstraint(Sketcher.Constraint("DistanceX", -1, 1, 2, 3, 5.767244))
pad7 = body2.newObject("PartDesign::Pad", "Pad006")
pad7.Profile = sketch9
pad7.Type = "TwoLengths"
pad7.Length = 2
pad7.Length2 = 3

doc.recompute()
